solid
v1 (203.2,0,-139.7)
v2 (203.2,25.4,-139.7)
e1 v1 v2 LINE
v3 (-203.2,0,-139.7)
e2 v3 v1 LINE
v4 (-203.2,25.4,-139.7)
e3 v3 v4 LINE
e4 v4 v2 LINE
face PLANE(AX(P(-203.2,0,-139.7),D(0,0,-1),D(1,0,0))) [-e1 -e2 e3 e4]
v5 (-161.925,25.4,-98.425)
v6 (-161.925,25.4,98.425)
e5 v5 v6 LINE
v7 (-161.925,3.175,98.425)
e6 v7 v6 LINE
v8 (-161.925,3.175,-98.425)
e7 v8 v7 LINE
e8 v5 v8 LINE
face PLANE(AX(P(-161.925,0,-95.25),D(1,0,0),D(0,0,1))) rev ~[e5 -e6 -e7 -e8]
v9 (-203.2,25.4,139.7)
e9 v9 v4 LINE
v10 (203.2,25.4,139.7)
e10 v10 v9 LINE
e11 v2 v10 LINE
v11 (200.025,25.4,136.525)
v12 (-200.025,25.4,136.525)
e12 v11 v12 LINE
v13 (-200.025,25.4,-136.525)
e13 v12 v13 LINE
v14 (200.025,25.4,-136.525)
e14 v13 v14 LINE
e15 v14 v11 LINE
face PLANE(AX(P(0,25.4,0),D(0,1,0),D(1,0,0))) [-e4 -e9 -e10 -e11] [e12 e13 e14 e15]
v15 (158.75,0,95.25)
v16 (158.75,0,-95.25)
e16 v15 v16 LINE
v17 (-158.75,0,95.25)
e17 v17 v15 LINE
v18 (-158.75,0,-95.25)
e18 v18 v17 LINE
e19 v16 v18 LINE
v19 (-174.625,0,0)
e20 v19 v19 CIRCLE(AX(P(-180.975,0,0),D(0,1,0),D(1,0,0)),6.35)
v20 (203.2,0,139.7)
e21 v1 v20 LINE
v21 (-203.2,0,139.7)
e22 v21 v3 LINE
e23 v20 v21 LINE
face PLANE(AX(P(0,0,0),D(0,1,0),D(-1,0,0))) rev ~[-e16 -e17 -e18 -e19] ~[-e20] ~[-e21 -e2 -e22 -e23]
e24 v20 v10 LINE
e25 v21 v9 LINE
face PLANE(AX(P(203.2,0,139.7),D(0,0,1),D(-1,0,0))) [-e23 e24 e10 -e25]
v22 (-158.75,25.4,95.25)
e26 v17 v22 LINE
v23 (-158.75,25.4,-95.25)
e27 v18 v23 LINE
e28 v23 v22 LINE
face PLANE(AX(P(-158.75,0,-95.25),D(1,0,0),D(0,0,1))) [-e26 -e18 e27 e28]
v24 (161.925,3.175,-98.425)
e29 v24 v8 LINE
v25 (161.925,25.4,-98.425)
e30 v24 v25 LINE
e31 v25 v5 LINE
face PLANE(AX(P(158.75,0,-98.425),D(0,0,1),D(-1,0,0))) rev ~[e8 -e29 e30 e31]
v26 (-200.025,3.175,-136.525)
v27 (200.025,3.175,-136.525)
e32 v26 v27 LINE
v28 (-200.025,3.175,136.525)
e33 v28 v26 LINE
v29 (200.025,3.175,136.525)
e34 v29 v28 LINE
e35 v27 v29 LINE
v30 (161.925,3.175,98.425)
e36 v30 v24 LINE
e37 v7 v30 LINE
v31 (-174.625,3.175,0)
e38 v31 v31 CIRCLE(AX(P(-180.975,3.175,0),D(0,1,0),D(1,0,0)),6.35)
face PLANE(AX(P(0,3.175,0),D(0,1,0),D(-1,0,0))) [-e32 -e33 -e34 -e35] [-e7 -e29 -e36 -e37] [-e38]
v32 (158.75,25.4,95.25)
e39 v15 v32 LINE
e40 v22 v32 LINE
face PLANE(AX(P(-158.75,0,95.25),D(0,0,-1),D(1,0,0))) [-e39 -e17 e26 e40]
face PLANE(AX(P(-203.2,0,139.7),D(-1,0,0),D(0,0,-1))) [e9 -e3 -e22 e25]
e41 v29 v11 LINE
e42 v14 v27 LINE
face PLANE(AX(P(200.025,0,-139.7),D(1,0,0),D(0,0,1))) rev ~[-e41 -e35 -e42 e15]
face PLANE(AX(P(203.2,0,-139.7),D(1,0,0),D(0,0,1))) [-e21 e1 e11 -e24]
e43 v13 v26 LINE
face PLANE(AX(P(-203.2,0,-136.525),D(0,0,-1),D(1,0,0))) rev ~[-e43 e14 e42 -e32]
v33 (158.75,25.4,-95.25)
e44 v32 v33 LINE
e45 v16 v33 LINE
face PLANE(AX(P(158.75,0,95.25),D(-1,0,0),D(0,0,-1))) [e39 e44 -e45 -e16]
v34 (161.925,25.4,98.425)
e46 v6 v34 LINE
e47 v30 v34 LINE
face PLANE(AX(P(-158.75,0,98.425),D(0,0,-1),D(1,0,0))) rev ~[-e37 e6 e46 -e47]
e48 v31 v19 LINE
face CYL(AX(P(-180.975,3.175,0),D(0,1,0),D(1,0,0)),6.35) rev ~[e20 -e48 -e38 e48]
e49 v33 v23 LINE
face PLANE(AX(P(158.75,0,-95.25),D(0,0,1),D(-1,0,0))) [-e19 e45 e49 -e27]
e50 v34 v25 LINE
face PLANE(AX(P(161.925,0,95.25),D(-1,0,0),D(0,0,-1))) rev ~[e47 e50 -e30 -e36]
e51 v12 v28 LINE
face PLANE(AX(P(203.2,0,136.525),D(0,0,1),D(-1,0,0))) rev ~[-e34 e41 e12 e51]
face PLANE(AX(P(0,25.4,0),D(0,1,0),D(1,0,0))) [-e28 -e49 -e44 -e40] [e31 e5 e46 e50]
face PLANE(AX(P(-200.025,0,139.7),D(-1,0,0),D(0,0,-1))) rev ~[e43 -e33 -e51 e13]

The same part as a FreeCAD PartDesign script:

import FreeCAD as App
import Part
import Sketcher

V = App.Vector
Q = App.Units.Quantity


def faces_at(feature, points):
    """Names of the faces that lie closest to the given points."""
    faces = feature.Shape.Faces
    near = lambda p: min(range(len(faces)), key=lambda i: faces[i].distToShape(Part.Vertex(*p))[0])
    return sorted({f"Face{near(p) + 1}" for p in points})


def add_polygon(sketch, points):
    """Adds a closed chain of lines whose ends are joined by coincident constraints."""
    first, n = sketch.GeometryCount, len(points)
    for a, b in zip(points, points[1:] + points[:1]):
        sketch.addGeometry(Part.LineSegment(App.Vector(*a, 0), App.Vector(*b, 0)), False)
    for i in range(n):
        sketch.addConstraint(Sketcher.Constraint("Coincident", first + i, 2, first + (i + 1) % n, 1))

doc = App.newDocument("Part")
body = doc.addObject("PartDesign::Body", "Body")

sketch1 = body.newObject("Sketcher::SketchObject", "Sketch")
sketch1.AttachmentSupport = (doc.getObject("XZ_Plane"), [""])
sketch1.MapMode = "FlatFace"
add_polygon(sketch1, [(-203.2, 139.7), (203.2, 139.7), (203.2, -139.7), (-203.2, -139.7)])
add_polygon(sketch1, [(-158.75, 95.25), (-158.75, -95.25), (158.75, -95.25), (158.75, 95.25)])
sketch1.addConstraint(Sketcher.Constraint("Horizontal", 0))
sketch1.addConstraint(Sketcher.Constraint("Vertical", 1))
sketch1.addConstraint(Sketcher.Constraint("Horizontal", 2))
sketch1.addConstraint(Sketcher.Constraint("Vertical", 3))
sketch1.addConstraint(Sketcher.Constraint("Vertical", 4))
sketch1.addConstraint(Sketcher.Constraint("Horizontal", 5))
sketch1.addConstraint(Sketcher.Constraint("Vertical", 6))
sketch1.addConstraint(Sketcher.Constraint("Horizontal", 7))
sketch1.addConstraint(Sketcher.Constraint("Symmetric", 0, 2, 2, 2, -1, 1))
sketch1.addConstraint(Sketcher.Constraint("Symmetric", 4, 2, 6, 2, -1, 1))
sketch1.addConstraint(Sketcher.Constraint("DistanceX", 0, 1, 0, 2, Q("16 in")))
sketch1.addConstraint(Sketcher.Constraint("DistanceY", 1, 2, 1, 1, Q("11 in")))
sketch1.addConstraint(Sketcher.Constraint("DistanceX", 2, 2, 4, 2, Q("1.75 in")))
sketch1.addConstraint(Sketcher.Constraint("DistanceY", 2, 2, 4, 2, Q("1.75 in")))
pad1 = body.newObject("PartDesign::Pad", "Pad")
pad1.Profile = sketch1
pad1.Length = Q("2 in")
pad1.Reversed = True
doc.recompute()

thickness = body.newObject("PartDesign::Thickness", "Thickness")
thickness.Base = (pad1, faces_at(pad1, [(52.917, 50.8, -124.883)]))
thickness.Value = Q("0.125 in")
thickness.Reversed = True
thickness.Join = "Intersection"

sketch2 = body.newObject("Sketcher::SketchObject", "Sketch001")
sketch2.AttachmentSupport = (doc.getObject("XZ_Plane"), [""])
sketch2.MapMode = "FlatFace"
sketch2.AttachmentOffset = App.Placement(V(0, 0, -2 * 25.4), App.Rotation())
add_polygon(sketch2, [(-227.9599, 165.6341), (227.9599, 165.6341), (227.9599, -165.6341), (-227.9599, -165.6341)])
sketch2.addConstraint(Sketcher.Constraint("Horizontal", 0))
sketch2.addConstraint(Sketcher.Constraint("Vertical", 1))
sketch2.addConstraint(Sketcher.Constraint("Horizontal", 2))
sketch2.addConstraint(Sketcher.Constraint("Vertical", 3))
sketch2.addConstraint(Sketcher.Constraint("Symmetric", 0, 2, 2, 2, -1, 1))
sketch2.addConstraint(Sketcher.Constraint("DistanceX", 0, 1, 0, 2, Q("17.9496 in")))
sketch2.addConstraint(Sketcher.Constraint("DistanceY", 1, 2, 1, 1, 331.2682))
pocket1 = body.newObject("PartDesign::Pocket", "Pocket")
pocket1.Profile = sketch2
pocket1.Length = Q("1 in")
pocket1.Reversed = True

sketch3 = body.newObject("Sketcher::SketchObject", "Sketch002")
sketch3.AttachmentSupport = (doc.getObject("XZ_Plane"), [""])
sketch3.MapMode = "FlatFace"
sketch3.AttachmentOffset = App.Placement(V(0, 0, -0.125 * 25.4), App.Rotation())
sketch3.addGeometry(Part.Circle(V(-180.975, 0, 0), V(0, 0, 1), 6.35), False)
sketch3.addConstraint(Sketcher.Constraint("PointOnObject", 0, 3, -1))
sketch3.addConstraint(Sketcher.Constraint("Diameter", 0, Q("0.5 in")))
sketch3.addConstraint(Sketcher.Constraint("DistanceX", 0, 3, -1, 1, Q("7.125 in")))
pocket2 = body.newObject("PartDesign::Pocket", "Pocket001")
pocket2.Profile = sketch3
pocket2.Length = Q("1 in")
pocket2.Reversed = True

doc.recompute()
